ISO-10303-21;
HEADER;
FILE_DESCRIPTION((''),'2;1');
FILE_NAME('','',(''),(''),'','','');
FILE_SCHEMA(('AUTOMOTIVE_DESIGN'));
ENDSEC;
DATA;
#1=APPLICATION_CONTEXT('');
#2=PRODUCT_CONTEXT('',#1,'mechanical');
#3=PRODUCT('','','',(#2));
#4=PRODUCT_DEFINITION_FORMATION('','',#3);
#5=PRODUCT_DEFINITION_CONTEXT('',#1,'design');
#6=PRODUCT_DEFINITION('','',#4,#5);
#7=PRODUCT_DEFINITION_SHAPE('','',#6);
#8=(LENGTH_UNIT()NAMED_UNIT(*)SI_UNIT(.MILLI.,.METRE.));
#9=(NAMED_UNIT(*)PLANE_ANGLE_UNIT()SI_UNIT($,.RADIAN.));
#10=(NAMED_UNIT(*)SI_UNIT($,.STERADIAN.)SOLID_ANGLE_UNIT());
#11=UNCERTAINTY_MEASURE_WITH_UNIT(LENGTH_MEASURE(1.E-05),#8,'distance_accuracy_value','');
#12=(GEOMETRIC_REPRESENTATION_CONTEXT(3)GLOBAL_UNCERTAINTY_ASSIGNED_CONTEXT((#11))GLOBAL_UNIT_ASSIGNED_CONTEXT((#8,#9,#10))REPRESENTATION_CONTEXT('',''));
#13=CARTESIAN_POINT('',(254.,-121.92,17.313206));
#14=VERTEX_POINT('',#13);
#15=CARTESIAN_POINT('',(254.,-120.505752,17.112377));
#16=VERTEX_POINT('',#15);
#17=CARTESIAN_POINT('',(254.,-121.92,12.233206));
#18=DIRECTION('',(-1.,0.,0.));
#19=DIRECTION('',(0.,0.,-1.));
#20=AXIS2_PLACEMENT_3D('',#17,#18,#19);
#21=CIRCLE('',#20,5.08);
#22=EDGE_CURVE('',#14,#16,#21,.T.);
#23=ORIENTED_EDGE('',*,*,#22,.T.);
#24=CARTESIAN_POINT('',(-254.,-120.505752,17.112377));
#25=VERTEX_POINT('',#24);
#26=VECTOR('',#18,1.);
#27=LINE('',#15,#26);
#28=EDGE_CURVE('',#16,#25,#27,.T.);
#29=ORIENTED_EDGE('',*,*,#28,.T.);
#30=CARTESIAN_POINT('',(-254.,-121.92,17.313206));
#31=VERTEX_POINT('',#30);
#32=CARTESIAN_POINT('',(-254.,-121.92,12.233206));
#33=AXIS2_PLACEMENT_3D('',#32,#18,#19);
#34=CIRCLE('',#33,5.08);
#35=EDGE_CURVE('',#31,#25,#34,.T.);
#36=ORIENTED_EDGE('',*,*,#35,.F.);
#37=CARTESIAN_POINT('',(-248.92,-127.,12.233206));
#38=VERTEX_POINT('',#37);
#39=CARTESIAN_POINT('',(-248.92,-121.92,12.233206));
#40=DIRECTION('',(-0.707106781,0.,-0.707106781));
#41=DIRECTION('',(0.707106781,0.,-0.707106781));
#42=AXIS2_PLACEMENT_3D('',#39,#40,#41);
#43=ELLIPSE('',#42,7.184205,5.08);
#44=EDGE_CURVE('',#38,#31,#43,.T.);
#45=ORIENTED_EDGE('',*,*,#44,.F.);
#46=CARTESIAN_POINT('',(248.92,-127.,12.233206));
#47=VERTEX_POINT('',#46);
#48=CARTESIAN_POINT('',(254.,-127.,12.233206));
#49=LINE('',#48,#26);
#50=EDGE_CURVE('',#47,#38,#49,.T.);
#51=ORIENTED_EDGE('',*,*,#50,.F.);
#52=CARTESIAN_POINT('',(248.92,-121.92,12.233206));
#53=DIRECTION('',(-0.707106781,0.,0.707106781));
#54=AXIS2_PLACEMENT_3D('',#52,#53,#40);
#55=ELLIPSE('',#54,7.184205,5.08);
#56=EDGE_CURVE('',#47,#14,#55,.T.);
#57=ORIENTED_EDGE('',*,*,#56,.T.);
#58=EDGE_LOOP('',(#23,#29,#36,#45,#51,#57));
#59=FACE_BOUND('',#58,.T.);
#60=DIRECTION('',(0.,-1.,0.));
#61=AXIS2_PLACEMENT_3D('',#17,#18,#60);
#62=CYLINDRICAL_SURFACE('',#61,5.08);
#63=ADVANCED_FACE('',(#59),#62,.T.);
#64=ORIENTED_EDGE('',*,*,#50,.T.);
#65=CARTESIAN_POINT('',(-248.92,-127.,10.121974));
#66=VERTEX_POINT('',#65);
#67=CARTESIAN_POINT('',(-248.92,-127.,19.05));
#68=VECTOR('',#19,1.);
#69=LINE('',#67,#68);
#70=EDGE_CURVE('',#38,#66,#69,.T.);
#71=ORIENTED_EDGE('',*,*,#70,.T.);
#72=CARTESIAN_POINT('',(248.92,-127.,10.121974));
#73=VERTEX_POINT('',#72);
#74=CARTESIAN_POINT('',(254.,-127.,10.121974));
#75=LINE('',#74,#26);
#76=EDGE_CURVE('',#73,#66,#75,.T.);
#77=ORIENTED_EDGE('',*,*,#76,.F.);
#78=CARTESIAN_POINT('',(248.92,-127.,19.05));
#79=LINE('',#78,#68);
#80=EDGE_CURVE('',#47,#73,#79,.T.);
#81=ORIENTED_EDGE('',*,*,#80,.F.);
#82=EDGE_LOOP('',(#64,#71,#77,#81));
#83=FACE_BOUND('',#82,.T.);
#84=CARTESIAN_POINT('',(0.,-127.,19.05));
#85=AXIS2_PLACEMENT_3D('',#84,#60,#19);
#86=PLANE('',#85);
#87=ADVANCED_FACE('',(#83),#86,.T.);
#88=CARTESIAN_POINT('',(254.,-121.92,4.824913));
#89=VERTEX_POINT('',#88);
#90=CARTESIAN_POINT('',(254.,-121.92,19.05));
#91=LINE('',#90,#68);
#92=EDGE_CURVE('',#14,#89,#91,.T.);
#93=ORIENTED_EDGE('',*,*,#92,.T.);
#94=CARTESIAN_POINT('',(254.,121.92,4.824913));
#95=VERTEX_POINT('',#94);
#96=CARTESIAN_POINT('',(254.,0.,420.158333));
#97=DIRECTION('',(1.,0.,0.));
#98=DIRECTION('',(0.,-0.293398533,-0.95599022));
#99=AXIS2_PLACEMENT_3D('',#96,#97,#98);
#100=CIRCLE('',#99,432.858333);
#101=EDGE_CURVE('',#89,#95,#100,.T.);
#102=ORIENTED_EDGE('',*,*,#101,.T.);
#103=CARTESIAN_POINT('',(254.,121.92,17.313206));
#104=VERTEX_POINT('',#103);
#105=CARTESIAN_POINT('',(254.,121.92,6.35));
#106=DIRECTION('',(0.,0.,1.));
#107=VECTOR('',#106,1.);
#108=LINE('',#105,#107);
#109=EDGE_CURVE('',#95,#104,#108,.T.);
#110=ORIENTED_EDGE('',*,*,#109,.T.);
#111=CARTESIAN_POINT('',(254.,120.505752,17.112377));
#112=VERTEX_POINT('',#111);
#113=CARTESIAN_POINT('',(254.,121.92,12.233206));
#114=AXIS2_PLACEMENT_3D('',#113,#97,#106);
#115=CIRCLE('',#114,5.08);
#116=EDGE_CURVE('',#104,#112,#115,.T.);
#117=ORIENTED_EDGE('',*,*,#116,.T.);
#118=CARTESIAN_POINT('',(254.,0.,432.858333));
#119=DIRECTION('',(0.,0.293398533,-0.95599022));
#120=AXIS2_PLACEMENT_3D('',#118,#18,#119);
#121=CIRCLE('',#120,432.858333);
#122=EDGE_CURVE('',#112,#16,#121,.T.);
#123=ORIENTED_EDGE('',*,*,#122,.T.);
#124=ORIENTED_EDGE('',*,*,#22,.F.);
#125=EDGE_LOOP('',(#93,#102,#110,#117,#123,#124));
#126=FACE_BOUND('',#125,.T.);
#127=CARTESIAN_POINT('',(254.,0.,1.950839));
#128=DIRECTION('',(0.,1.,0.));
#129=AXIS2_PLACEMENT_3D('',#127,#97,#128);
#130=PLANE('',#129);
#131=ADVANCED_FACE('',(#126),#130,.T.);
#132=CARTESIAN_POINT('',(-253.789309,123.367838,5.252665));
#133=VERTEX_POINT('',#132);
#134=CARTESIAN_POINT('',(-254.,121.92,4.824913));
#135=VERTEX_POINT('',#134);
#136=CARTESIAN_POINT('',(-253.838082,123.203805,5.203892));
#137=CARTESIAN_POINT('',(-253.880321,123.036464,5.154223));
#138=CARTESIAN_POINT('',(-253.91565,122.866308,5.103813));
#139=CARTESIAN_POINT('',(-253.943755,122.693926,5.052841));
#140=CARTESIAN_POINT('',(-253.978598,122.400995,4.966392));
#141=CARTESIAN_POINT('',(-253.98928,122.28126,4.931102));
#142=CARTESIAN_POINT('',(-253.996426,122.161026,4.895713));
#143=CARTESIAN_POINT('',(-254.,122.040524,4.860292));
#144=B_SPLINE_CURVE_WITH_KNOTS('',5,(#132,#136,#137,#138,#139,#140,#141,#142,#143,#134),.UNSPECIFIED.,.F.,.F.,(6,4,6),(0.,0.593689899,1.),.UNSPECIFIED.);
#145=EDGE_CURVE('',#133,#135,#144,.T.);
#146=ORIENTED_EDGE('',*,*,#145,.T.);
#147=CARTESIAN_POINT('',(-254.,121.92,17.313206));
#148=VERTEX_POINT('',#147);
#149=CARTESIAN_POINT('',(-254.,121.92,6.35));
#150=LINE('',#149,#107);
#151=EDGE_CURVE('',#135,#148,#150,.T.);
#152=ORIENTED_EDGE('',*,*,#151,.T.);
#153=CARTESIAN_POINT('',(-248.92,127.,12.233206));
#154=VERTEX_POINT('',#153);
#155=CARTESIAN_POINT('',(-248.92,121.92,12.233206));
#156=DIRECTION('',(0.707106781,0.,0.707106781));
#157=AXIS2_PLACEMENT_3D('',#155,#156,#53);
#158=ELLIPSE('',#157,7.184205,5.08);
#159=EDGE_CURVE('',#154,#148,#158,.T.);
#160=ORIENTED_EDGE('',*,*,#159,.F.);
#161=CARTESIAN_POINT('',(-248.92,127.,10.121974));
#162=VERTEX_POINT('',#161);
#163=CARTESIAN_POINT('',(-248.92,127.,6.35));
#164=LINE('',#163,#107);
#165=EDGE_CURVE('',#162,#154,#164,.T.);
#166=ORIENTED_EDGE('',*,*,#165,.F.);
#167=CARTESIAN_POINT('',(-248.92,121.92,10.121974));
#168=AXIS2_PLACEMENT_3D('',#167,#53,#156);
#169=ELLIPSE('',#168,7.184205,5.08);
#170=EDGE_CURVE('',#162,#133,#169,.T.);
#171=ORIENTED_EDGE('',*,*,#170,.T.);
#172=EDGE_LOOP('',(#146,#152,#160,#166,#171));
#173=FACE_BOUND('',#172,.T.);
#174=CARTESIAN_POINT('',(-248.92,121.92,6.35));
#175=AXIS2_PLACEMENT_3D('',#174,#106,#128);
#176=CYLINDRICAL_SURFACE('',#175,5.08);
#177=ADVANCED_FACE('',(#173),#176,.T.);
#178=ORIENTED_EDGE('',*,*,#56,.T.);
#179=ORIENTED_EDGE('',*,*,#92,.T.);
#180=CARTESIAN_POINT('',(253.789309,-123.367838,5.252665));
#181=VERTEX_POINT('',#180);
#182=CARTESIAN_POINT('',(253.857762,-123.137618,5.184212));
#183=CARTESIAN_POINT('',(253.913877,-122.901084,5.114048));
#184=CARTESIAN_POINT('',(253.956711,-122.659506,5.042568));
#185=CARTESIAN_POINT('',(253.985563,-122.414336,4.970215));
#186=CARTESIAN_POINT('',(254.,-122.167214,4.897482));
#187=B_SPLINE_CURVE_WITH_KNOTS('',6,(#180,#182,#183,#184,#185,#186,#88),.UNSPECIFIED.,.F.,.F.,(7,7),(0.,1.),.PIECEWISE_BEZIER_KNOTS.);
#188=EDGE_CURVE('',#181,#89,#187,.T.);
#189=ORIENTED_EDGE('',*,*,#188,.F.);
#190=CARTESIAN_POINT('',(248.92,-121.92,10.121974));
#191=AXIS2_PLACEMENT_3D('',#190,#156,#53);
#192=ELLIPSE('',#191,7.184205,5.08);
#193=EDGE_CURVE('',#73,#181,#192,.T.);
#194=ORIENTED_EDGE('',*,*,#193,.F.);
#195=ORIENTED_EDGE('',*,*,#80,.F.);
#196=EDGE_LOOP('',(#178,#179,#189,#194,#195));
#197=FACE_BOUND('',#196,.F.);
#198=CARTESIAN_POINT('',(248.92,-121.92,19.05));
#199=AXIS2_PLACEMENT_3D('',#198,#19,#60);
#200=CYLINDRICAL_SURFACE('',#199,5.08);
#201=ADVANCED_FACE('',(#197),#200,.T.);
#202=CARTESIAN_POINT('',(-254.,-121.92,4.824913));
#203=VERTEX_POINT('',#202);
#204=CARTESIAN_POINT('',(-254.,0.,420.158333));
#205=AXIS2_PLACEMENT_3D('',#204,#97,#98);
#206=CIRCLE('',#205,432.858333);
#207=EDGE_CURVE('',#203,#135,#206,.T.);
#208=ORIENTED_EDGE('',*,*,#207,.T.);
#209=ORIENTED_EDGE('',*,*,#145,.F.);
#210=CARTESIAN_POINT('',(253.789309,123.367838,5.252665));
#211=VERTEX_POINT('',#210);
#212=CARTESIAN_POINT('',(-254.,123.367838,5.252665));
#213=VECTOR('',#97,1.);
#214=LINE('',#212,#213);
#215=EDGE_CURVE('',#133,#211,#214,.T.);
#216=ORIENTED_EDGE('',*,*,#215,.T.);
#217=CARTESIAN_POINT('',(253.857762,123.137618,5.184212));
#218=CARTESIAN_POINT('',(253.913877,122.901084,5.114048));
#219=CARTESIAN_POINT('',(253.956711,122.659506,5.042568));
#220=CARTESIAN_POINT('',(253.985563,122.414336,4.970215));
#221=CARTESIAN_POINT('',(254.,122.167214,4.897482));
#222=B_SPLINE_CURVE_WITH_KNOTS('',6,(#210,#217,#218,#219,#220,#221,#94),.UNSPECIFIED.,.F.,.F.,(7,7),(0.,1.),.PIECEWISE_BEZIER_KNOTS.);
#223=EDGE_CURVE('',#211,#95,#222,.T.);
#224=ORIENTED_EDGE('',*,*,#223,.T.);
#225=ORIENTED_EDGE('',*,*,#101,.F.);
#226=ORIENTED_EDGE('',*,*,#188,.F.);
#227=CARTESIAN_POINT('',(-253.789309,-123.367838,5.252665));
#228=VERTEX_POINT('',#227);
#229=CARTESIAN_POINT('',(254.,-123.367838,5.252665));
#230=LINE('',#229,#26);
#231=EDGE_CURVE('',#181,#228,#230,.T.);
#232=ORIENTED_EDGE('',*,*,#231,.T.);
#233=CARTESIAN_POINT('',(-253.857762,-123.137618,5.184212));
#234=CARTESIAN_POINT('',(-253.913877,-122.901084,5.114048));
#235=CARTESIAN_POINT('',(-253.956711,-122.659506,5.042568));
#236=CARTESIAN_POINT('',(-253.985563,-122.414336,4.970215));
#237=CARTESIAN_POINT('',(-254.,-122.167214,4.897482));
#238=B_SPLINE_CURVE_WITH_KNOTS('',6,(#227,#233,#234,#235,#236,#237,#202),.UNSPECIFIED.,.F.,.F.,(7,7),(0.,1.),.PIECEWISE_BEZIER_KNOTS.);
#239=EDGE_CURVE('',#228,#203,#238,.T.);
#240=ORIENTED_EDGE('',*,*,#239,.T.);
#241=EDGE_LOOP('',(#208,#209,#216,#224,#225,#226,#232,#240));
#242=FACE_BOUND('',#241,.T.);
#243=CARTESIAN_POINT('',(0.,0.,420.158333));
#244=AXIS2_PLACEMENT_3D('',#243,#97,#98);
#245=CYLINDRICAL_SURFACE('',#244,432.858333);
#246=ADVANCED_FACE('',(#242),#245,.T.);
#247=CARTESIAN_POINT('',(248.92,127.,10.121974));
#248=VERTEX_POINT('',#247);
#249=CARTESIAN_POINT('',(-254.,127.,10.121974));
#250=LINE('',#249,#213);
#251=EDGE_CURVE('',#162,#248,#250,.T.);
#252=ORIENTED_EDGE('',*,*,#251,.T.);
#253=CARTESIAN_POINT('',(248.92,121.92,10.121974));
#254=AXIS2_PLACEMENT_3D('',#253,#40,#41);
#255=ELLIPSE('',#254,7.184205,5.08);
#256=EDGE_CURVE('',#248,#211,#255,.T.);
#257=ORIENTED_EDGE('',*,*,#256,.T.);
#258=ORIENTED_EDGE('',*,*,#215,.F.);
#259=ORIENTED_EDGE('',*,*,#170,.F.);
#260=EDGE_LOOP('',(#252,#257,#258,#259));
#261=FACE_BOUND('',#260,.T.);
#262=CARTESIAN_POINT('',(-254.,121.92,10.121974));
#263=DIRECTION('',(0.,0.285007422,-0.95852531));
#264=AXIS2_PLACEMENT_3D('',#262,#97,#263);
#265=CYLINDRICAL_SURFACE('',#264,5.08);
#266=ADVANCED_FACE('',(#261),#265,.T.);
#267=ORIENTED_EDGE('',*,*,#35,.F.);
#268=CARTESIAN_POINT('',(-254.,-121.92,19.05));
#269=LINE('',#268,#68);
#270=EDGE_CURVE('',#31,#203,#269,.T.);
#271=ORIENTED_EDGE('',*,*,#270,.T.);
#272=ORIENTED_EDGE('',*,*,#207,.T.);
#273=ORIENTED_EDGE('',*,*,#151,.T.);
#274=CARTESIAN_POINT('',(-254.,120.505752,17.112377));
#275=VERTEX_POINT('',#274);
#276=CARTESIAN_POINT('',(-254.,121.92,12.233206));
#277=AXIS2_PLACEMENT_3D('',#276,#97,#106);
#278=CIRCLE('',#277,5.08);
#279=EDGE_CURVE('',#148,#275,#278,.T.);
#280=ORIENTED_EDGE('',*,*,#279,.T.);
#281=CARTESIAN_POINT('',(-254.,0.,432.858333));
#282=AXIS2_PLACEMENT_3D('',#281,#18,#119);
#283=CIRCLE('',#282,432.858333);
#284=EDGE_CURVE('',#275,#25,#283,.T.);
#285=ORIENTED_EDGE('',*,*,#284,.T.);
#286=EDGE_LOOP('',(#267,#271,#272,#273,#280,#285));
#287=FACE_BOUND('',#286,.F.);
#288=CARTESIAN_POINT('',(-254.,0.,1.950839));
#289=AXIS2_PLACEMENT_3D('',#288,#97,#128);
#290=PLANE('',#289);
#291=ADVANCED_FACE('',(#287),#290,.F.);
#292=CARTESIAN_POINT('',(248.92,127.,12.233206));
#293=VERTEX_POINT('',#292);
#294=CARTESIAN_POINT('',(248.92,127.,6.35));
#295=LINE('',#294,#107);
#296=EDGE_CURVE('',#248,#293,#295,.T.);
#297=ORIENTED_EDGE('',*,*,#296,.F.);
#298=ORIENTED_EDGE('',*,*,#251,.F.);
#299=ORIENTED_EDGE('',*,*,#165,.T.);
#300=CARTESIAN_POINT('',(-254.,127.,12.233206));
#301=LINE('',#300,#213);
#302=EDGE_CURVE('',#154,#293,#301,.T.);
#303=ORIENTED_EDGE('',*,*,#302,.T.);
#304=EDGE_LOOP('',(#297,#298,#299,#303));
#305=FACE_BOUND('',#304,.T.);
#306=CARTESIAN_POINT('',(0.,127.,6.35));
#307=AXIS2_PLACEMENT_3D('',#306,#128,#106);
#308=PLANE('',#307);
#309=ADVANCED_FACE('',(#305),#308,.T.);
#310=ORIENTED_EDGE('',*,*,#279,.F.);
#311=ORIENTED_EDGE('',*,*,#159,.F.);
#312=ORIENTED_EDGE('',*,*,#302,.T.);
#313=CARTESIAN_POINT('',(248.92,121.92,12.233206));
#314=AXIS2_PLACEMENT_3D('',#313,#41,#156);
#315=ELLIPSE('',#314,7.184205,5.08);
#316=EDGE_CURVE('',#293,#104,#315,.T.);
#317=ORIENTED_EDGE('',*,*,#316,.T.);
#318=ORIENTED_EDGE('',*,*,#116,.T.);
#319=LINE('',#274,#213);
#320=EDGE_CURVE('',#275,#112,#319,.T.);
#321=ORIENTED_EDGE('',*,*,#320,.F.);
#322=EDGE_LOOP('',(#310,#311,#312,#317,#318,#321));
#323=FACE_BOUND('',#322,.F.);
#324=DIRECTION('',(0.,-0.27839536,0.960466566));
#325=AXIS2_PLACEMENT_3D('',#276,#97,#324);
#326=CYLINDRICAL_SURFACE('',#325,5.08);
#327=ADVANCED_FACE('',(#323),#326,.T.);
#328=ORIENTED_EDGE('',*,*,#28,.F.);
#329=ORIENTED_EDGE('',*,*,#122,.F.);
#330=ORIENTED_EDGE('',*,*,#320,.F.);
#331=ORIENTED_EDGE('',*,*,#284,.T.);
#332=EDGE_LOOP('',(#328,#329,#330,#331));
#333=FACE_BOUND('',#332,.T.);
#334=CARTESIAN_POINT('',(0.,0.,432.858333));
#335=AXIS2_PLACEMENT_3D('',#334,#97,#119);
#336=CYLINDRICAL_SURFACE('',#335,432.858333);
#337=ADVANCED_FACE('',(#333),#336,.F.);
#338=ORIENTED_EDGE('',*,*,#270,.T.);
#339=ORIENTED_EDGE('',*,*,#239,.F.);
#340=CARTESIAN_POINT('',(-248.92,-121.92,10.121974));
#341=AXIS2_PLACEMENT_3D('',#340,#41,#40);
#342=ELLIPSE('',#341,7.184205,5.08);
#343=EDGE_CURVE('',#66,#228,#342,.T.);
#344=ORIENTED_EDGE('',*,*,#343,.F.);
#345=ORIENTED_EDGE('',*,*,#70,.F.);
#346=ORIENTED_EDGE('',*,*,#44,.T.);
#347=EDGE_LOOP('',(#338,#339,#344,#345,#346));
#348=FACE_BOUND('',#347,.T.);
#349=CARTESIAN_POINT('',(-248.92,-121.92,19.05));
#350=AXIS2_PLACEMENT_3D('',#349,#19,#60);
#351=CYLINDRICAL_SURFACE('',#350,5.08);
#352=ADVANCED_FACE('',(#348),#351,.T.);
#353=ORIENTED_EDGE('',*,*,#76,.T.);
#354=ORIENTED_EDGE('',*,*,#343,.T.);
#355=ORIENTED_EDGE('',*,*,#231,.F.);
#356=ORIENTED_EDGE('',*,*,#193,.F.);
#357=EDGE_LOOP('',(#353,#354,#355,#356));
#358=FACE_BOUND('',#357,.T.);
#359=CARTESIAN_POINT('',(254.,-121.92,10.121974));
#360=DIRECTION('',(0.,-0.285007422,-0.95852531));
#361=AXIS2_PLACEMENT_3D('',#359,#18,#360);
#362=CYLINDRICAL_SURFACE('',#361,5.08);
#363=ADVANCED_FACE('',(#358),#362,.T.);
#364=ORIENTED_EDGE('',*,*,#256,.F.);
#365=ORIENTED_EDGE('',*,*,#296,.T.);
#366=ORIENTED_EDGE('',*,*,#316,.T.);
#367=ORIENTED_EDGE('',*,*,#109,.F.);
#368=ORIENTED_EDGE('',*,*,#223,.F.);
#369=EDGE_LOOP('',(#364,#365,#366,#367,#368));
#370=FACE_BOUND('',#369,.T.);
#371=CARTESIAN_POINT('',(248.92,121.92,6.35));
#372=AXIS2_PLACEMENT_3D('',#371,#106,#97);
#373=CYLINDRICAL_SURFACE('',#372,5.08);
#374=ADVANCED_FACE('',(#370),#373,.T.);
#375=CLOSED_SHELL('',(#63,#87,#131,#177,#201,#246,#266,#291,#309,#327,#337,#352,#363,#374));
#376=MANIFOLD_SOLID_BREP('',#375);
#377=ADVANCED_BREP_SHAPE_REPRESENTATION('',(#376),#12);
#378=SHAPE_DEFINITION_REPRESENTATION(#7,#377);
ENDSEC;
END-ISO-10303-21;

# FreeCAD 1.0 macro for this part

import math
import FreeCAD as App
import Part
import Sketcher

V = App.Vector
Q = App.Units.Quantity


def edges_at(feature, points):
    """Names of the edges that pass closest to the given points."""
    edges = feature.Shape.Edges
    near = lambda p: min(range(len(edges)), key=lambda i: edges[i].distToShape(Part.Vertex(*p))[0])
    return sorted({f"Edge{near(p) + 1}" for p in points})

doc = App.newDocument("Part")
body = doc.addObject("PartDesign::Body", "Body")

sketch1 = body.newObject("Sketcher::SketchObject", "Sketch")
sketch1.AttachmentSupport = (doc.getObject("YZ_Plane"), [""])
sketch1.MapMode = "FlatFace"
sketch1.addGeometry([
    Part.ArcOfCircle(Part.Circle(V(0, 420.158333, 0), V(0, 0, 1), 432.858333), math.radians(-107.061531), math.radians(-72.938469)),
    Part.LineSegment(V(127, 6.35, 0), V(127, 19.05, 0)),
    Part.ArcOfCircle(Part.Circle(V(0, 432.858333, 0), V(0, 0, 1), 432.858333), math.radians(-107.061531), math.radians(-72.938469)),
    Part.LineSegment(V(-127, 19.05, 0), V(-127, 6.35, 0)),
], False)
sketch1.addConstraint([
    Sketcher.Constraint("Coincident", 0, 2, 1, 1),
    Sketcher.Constraint("Coincident", 1, 2, 2, 2),
    Sketcher.Constraint("Coincident", 2, 1, 3, 1),
    Sketcher.Constraint("Coincident", 3, 2, 0, 1),
    Sketcher.Constraint("Vertical", 1),
    Sketcher.Constraint("Vertical", 3),
    Sketcher.Constraint("Equal", 0, 2),
    Sketcher.Constraint("Symmetric", 1, 2, 2, 1, -2),
    Sketcher.Constraint("PointOnObject", 0, 3, -2),
    Sketcher.Constraint("DistanceY", 1, 1, 1, 2, Q("0.5 in")),
    Sketcher.Constraint("DistanceX", -1, 1, 1, 2, Q("5 in")),
    Sketcher.Constraint("DistanceY", -1, 1, 0, 2, Q("0.25 in")),
    Sketcher.Constraint("Radius", 0, 432.858333),
])
pad1 = body.newObject("PartDesign::Pad", "Pad")
pad1.Profile = sketch1
pad1.Type = "TwoLengths"
pad1.Length = Q("10 in")
pad1.Length2 = Q("10 in")
doc.recompute()

fillet = body.newObject("PartDesign::Fillet", "Fillet")
fillet.Base = (pad1, edges_at(pad1, [
    (0, 127, 6.35),
    (254, 127, 12.7),
    (0, 127, 19.05),
    (-254, 127, 12.7),
    (254, -127, 12.7),
    (0, -127, 6.35),
    (-254, -127, 12.7),
    (0, -127, 19.05),
]))
fillet.Radius = Q("0.2 in")

doc.recompute()
